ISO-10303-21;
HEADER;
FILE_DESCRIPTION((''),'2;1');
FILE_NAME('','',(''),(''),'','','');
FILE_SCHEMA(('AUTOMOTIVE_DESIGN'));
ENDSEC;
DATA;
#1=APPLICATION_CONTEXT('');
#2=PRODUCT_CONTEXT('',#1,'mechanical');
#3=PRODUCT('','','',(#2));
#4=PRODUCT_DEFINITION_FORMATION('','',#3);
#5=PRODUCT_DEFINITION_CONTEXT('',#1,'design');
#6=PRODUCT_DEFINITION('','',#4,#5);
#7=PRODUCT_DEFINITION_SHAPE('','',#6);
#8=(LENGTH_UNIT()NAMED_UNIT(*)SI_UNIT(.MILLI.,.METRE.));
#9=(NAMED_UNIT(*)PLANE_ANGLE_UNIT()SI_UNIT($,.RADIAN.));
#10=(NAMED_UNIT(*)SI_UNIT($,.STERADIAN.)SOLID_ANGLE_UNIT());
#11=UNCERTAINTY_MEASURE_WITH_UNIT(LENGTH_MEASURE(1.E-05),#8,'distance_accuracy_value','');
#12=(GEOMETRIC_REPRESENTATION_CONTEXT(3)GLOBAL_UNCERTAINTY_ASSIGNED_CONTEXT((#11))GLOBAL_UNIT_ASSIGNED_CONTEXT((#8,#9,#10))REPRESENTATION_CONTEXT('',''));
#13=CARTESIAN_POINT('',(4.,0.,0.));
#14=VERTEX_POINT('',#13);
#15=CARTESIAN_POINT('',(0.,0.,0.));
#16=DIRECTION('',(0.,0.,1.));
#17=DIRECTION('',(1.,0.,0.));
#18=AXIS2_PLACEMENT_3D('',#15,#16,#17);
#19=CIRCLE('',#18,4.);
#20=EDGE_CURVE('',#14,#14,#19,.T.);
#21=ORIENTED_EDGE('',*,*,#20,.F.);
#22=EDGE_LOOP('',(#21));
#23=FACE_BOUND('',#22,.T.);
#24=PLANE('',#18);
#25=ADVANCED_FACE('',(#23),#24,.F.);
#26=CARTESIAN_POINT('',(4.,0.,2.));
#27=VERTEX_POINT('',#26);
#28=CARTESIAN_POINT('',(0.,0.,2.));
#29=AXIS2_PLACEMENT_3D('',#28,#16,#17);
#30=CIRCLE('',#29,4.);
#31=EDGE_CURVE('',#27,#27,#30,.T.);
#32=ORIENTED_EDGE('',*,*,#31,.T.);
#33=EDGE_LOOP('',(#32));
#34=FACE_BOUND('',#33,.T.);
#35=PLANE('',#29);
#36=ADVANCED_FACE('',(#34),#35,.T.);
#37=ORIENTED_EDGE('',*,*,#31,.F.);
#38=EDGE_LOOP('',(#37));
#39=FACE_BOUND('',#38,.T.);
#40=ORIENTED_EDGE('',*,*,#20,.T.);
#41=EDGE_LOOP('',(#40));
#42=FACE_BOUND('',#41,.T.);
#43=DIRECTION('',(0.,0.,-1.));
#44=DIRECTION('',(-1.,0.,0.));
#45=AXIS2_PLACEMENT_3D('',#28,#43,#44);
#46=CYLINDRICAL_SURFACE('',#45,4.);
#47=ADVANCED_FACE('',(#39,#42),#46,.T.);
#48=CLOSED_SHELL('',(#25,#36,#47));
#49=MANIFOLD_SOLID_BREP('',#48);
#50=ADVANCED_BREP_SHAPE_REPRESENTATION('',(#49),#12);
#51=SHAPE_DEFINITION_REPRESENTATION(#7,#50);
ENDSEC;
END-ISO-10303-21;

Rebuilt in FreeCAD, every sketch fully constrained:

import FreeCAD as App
import Part
import Sketcher

V = App.Vector

doc = App.newDocument("Part")
body = doc.addObject("PartDesign::Body", "Body")

# Sketch on XY plane
sketch1 = body.newObject("Sketcher::SketchObject", "Sketch")
sketch1.AttachmentSupport = (doc.getObject("XY_Plane"), [""])
sketch1.MapMode = "FlatFace"
sketch1.addGeometry(Part.Circle(V(0, 0, 0), V(0, 0, 1), 4), False)
sketch1.addConstraint([
    Sketcher.Constraint("Coincident", 0, 3, -1, 1),
    Sketcher.Constraint("Diameter", 0, 8.0),
])
pad1 = body.newObject("PartDesign::Pad", "Pad")
pad1.Profile = sketch1
pad1.Length = 2

doc.recompute()
